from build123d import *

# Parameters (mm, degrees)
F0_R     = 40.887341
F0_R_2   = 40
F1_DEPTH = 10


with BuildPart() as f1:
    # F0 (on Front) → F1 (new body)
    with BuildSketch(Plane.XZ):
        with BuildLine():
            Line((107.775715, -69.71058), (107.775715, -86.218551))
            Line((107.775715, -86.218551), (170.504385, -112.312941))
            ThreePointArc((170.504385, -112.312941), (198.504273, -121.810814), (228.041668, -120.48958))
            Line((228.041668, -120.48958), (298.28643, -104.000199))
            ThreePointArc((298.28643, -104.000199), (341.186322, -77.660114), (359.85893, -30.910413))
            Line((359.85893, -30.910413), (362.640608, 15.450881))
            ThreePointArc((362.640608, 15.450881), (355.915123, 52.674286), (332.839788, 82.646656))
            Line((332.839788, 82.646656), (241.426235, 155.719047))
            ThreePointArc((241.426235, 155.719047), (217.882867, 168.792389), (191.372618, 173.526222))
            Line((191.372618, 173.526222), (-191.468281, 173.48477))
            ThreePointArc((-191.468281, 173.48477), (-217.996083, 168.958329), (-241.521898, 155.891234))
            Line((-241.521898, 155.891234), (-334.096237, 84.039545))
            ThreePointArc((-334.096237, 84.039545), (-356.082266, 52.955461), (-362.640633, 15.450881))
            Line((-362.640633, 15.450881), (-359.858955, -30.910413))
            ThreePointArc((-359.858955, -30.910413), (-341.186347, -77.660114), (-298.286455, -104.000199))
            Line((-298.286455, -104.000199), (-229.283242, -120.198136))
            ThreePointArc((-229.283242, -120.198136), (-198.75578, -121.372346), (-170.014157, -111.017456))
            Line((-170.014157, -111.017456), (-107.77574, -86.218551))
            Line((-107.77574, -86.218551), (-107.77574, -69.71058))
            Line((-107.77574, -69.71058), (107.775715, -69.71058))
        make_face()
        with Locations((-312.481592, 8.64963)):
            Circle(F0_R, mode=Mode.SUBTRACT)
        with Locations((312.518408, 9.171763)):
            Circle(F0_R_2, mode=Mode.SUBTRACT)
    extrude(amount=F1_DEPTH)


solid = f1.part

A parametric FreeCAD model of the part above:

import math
import FreeCAD as App
import Part
import Sketcher

doc = App.newDocument("Part")
body = doc.addObject("PartDesign::Body", "Body")

# Sketch on XZ plane
sketch1 = doc.addObject("Sketcher::SketchObject", "Sketch")
body.addObject(sketch1)
sketch1.AttachmentSupport = (doc.XZ_Plane, [""])
sketch1.MapMode = "FlatFace"
sketch1.addGeometry([
    Part.LineSegment(App.Vector(108, -70, 0), App.Vector(108, -86, 0)),  # 0
    Part.LineSegment(App.Vector(108, -86, 0), App.Vector(171, -112, 0)),  # 1
    Part.ArcOfCircle(Part.Circle(App.Vector(210, -43, 0), App.Vector(0, 0, 1), 80), math.radians(-119), math.radians(-77)),  # 2
    Part.LineSegment(App.Vector(228, -120, 0), App.Vector(298, -104, 0)),  # 3
    Part.ArcOfCircle(Part.Circle(App.Vector(280, -26, 0), App.Vector(0, 0, 1), 80), math.radians(-77), math.radians(-3)),  # 4
    Part.LineSegment(App.Vector(360, -31, 0), App.Vector(363, 15, 0)),  # 5
    Part.ArcOfCircle(Part.Circle(App.Vector(283, 20, 0), App.Vector(0, 0, 1), 80), math.radians(-3), math.radians(51)),  # 6
    Part.LineSegment(App.Vector(333, 83, 0), App.Vector(241, 156, 0)),  # 7
    Part.ArcOfCircle(Part.Circle(App.Vector(190, 92, 0), App.Vector(0, 0, 1), 82), math.radians(51), math.radians(89)),  # 8
    Part.LineSegment(App.Vector(191, 174, 0), App.Vector(-191, 173, 0)),  # 9
    Part.ArcOfCircle(Part.Circle(App.Vector(-191, 93, 0), App.Vector(0, 0, 1), 80), math.radians(90), math.radians(129)),  # 10
    Part.LineSegment(App.Vector(-242, 156, 0), App.Vector(-334, 84, 0)),  # 11
    Part.ArcOfCircle(Part.Circle(App.Vector(-276, 20, 0), App.Vector(0, 0, 1), 87), math.radians(132), math.radians(183)),  # 12
    Part.LineSegment(App.Vector(-363, 15, 0), App.Vector(-360, -31, 0)),  # 13
    Part.ArcOfCircle(Part.Circle(App.Vector(-280, -26, 0), App.Vector(0, 0, 1), 80), math.radians(-177), math.radians(-103)),  # 14
    Part.LineSegment(App.Vector(-298, -104, 0), App.Vector(-229, -120, 0)),  # 15
    Part.ArcOfCircle(Part.Circle(App.Vector(-211, -42, 0), App.Vector(0, 0, 1), 80), math.radians(-103), math.radians(-59)),  # 16
    Part.LineSegment(App.Vector(-170, -111, 0), App.Vector(-108, -86, 0)),  # 17
    Part.LineSegment(App.Vector(-108, -86, 0), App.Vector(-108, -70, 0)),  # 18
    Part.LineSegment(App.Vector(-108, -70, 0), App.Vector(108, -70, 0)),  # 19
    Part.Circle(App.Vector(-312, 9, 0), App.Vector(0, 0, 1), 41),  # 20
    Part.Circle(App.Vector(313, 9, 0), App.Vector(0, 0, 1), 40),  # 21
], False)
sketch1.addConstraint([
    Sketcher.Constraint("Coincident", 0, 2, 1, 1),
    Sketcher.Constraint("Coincident", 1, 2, 2, 1),
    Sketcher.Constraint("Tangent", 2, 2, 3, 1),
    Sketcher.Constraint("Tangent", 3, 2, 4, 1),
    Sketcher.Constraint("Tangent", 4, 2, 5, 1),
    Sketcher.Constraint("Tangent", 5, 2, 6, 1),
    Sketcher.Constraint("Coincident", 6, 2, 7, 1),
    Sketcher.Constraint("Coincident", 7, 2, 8, 1),
    Sketcher.Constraint("Coincident", 8, 2, 9, 1),
    Sketcher.Constraint("Coincident", 9, 2, 10, 1),
    Sketcher.Constraint("Coincident", 10, 2, 11, 1),
    Sketcher.Constraint("Coincident", 11, 2, 12, 1),
    Sketcher.Constraint("Coincident", 12, 2, 13, 1),
    Sketcher.Constraint("Tangent", 13, 2, 14, 1),
    Sketcher.Constraint("Tangent", 14, 2, 15, 1),
    Sketcher.Constraint("Tangent", 15, 2, 16, 1),
    Sketcher.Constraint("Coincident", 16, 2, 17, 1),
    Sketcher.Constraint("Coincident", 17, 2, 18, 1),
    Sketcher.Constraint("Coincident", 18, 2, 19, 1),
    Sketcher.Constraint("Coincident", 19, 2, 0, 1),
    Sketcher.Constraint("Vertical", 0),
    Sketcher.Constraint("Vertical", 18),
    Sketcher.Constraint("Horizontal", 19),
    Sketcher.Constraint("Equal", 2, 4),
    Sketcher.Constraint("Equal", 4, 14),
    Sketcher.Constraint("Horizontal", 4, 3, 14, 3),
    Sketcher.Constraint("Horizontal", 5, 2, 12, 2),
    Sketcher.Constraint("Horizontal", 4, 2, 13, 2),
    Sketcher.Constraint("Horizontal", 3, 2, 14, 2),
    Sketcher.Constraint("Horizontal", 0, 2, 17, 2),
    Sketcher.Constraint("Diameter", 21, 80.0),
    Sketcher.Constraint("Diameter", 20, 81.774682),
    Sketcher.Constraint("Radius", 6, 79.998049),
    Sketcher.Constraint("Radius", 2, 79.998045),
    Sketcher.Constraint("Radius", 8, 81.929507),
    Sketcher.Constraint("Radius", 10, 79.998042),
    Sketcher.Constraint("Radius", 12, 86.749017),
    Sketcher.Constraint("Radius", 16, 79.998056),
    Sketcher.Constraint("DistanceY", 2, 2, 19, 2, 50.779),
    Sketcher.Constraint("Distance", 9, 382.840901),
    Sketcher.Constraint("DistanceY", 0, 2, 0, 1, 16.507971),
    Sketcher.Constraint("DistanceY", -1, 1, 12, 3, 19.624499),
    Sketcher.Constraint("DistanceY", 3, 2, -1, 1, 104.000199),
    Sketcher.Constraint("DistanceY", 16, 3, 10, 3, 135.803802),
    Sketcher.Constraint("DistanceX", 2, 2, 6, 3, 54.7445),
    Sketcher.Constraint("DistanceX", 2, 3, 3, 2, 88.526698),
    Sketcher.Constraint("DistanceX", 3, 2, 4, 2, 61.5725),
    Sketcher.Constraint("DistanceX", 21, 3, 5, 2, 50.1222),
    Sketcher.Constraint("DistanceY", 6, 3, 7, 2, 135.476902),
    Sketcher.Constraint("Distance", 5, 46.444669),
    Sketcher.Constraint("Distance", 7, 117.029962),
    Sketcher.Constraint("Distance", 11, 117.18649),
    Sketcher.Constraint("Distance", 17, 66.997061),
    Sketcher.Constraint("DistanceX", 19, 1, 19, 2, 215.551455),
    Sketcher.Constraint("DistanceX", -1, 1, 2, 3, 209.759732),
    Sketcher.Constraint("DistanceX", 14, 3, -1, 1, 280.004519),
    Sketcher.Constraint("DistanceX", 20, 3, -1, 1, 312.481592),
    Sketcher.Constraint("DistanceY", -1, 1, 20, 3, 8.64963),
    Sketcher.Constraint("DistanceY", 1, 2, -1, 1, 112.312941),
    Sketcher.Constraint("DistanceX", -1, 1, 6, 2, 332.839788),
    Sketcher.Constraint("DistanceY", -1, 1, 8, 2, 173.526222),
    Sketcher.Constraint("DistanceX", 9, 2, -1, 1, 191.468281),
    Sketcher.Constraint("DistanceY", -1, 1, 9, 2, 173.48477),
    Sketcher.Constraint("DistanceX", 17, 2, -1, 1, 107.77574),
    Sketcher.Constraint("DistanceX", 10, 3, 6, 3, 474.254451),
    Sketcher.Constraint("DistanceY", 4, 3, 21, 3, 35.290912),
    Sketcher.Constraint("DistanceX", 14, 3, 10, 2, 38.482621),
])
pad1 = doc.addObject("PartDesign::Pad", "Pad")
body.addObject(pad1)
pad1.Profile = sketch1
pad1.Length = 10

doc.recompute()
